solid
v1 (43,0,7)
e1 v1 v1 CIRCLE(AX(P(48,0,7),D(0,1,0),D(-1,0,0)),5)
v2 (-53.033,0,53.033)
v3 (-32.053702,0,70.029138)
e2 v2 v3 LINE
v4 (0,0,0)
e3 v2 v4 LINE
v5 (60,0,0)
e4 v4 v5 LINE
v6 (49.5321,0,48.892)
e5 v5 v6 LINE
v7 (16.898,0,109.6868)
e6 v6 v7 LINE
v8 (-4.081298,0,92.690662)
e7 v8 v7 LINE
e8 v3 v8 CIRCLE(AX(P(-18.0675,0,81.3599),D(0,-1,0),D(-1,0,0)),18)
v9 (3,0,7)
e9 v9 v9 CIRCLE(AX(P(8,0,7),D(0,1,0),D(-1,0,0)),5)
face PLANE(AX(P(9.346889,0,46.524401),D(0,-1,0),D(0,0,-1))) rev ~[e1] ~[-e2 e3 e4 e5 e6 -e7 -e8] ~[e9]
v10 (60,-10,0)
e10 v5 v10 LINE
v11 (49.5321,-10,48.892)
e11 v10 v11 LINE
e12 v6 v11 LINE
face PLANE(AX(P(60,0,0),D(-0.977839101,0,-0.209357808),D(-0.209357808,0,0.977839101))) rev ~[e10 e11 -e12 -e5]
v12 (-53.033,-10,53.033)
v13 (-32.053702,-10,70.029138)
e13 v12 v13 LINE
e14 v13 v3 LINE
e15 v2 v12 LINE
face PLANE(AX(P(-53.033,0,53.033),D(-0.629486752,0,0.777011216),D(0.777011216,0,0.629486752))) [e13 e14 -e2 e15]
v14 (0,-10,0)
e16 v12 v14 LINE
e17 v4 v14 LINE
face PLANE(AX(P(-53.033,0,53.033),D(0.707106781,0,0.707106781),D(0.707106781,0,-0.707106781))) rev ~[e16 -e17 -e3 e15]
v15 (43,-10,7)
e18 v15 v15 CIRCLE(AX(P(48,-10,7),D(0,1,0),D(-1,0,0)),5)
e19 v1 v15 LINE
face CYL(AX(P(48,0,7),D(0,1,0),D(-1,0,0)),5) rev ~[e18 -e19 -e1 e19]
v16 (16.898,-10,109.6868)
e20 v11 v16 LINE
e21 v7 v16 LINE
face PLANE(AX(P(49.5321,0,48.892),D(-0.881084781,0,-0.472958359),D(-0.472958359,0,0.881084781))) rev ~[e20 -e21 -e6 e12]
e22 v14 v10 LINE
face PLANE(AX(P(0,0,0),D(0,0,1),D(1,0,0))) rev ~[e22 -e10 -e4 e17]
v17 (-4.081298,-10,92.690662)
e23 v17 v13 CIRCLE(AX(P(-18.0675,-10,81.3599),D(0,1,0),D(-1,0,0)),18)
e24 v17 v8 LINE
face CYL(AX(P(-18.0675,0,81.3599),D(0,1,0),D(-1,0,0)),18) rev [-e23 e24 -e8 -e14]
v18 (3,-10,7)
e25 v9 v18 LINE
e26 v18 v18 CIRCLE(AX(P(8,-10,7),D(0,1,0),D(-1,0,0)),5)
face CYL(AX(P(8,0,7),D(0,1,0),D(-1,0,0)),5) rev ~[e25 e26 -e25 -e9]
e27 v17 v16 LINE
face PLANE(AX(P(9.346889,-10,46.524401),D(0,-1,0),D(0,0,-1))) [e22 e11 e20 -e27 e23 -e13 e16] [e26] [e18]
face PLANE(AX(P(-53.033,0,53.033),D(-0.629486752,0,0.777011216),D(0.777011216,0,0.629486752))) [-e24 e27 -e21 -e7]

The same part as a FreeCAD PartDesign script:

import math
import FreeCAD as App
import Part
import Sketcher
from FreeCAD import Vector
Q = App.Units.Quantity

doc = App.newDocument("Part")
body = doc.addObject("PartDesign::Body", "Body")

# Sketch on XZ plane
sketch1 = body.newObject("Sketcher::SketchObject", "Sketch")
sketch1.AttachmentSupport = (doc.getObject("XZ_Plane"), [""])
sketch1.MapMode = "FlatFace"
sketch1.addGeometry([
    Part.LineSegment(Vector(17, 110, 0), Vector(-53, 53, 0)),  # 0
    Part.LineSegment(Vector(-53, 53, 0), Vector(0, 0, 0)),  # 1
    Part.LineSegment(Vector(0, 0, 0), Vector(60, 0, 0)),  # 2
    Part.LineSegment(Vector(60, 0, 0), Vector(50, 49, 0)),  # 3
    Part.LineSegment(Vector(50, 49, 0), Vector(17, 110, 0)),  # 4
], False)
sketch1.addConstraint([
    Sketcher.Constraint("Coincident", 0, 2, 1, 1),
    Sketcher.Constraint("Coincident", 1, 2, 2, 1),
    Sketcher.Constraint("Coincident", 2, 2, 3, 1),
    Sketcher.Constraint("Coincident", 3, 2, 4, 1),
    Sketcher.Constraint("Coincident", 4, 2, 0, 1),
    Sketcher.Constraint("Horizontal", 2),
    Sketcher.Constraint("Coincident", 1, 2, -1, 1),
    Sketcher.Constraint("DistanceX", 2, 1, 2, 2, Q("60 mm")),
    Sketcher.Constraint("Angle", 1, Q("-45 deg")),
    Sketcher.Constraint("Distance", 0, Q("90 mm")),
    Sketcher.Constraint("Distance", 1, Q("75 mm")),
    Sketcher.Constraint("Distance", 3, Q("50 mm")),
    Sketcher.Constraint("Distance", 4, Q("69 mm")),
    Sketcher.Constraint("DistanceX", -1, 1, 3, 2, Q("49.532 mm")),
])
pad1 = body.newObject("PartDesign::Pad", "Pad")
pad1.Profile = sketch1
pad1.Length = 10

# Sketch on XZ plane
sketch2 = body.newObject("Sketcher::SketchObject", "Sketch001")
sketch2.AttachmentSupport = (doc.getObject("XZ_Plane"), [""])
sketch2.MapMode = "FlatFace"
sketch2.addGeometry([
    Part.LineSegment(Vector(-32, 70, 0), Vector(-4, 93, 0)),
    Part.ArcOfCircle(Part.Circle(Vector(-18, 81, 0), Vector(0, 0, 1), 18), math.radians(-141), math.radians(39)),
], False)
sketch2.addConstraint([
    Sketcher.Constraint("Coincident", 0, 1, 1, 1),
    Sketcher.Constraint("Coincident", 1, 2, 0, 2),
    Sketcher.Constraint("Radius", 1, Q("18 mm")),
    Sketcher.Constraint("DistanceY", -1, 1, 1, 3, Q("81.36 mm")),
    Sketcher.Constraint("DistanceX", 1, 3, -1, 1, Q("18.0675 mm")),
    Sketcher.Constraint("DistanceX", 0, 1, -1, 1, Q("32.0537 mm")),
    Sketcher.Constraint("DistanceX", 1, 2, -1, 1, Q("4.0813 mm")),
])
pocket1 = body.newObject("PartDesign::Pocket", "Pocket")
pocket1.Profile = sketch2
pocket1.Type = "UpToFirst"
pocket1.Reversed = True

# Sketch on XZ plane
sketch3 = body.newObject("Sketcher::SketchObject", "Sketch002")
sketch3.AttachmentSupport = (doc.getObject("XZ_Plane"), [""])
sketch3.MapMode = "FlatFace"
sketch3.addGeometry([
    Part.Circle(Vector(48, 7, 0), Vector(0, 0, 1), 5),
    Part.Circle(Vector(8, 7, 0), Vector(0, 0, 1), 5),
], False)
sketch3.addConstraint([
    Sketcher.Constraint("Equal", 0, 1),
    Sketcher.Constraint("Horizontal", 0, 3, 1, 3),
    Sketcher.Constraint("Diameter", 0, Q("10 mm")),
    Sketcher.Constraint("DistanceX", -1, 1, 0, 3, Q("48 mm")),
    Sketcher.Constraint("DistanceY", -1, 1, 0, 3, Q("7 mm")),
    Sketcher.Constraint("DistanceX", -1, 1, 1, 3, Q("8 mm")),
])
pocket2 = body.newObject("PartDesign::Pocket", "Pocket001")
pocket2.Profile = sketch3
pocket2.Type = "UpToFirst"
pocket2.Reversed = True

doc.recompute()
